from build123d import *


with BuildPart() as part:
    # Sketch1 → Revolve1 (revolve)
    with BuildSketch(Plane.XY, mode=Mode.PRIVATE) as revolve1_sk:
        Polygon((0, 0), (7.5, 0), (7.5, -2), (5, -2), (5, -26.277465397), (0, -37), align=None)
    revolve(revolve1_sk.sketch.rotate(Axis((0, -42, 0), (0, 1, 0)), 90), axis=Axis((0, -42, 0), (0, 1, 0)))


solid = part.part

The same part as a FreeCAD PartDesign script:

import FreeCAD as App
import Part
import Sketcher

V = App.Vector
Q = App.Units.Quantity


def add_polygon(sketch, points):
    """Adds a closed chain of lines whose ends are joined by coincident constraints."""
    first, n = sketch.GeometryCount, len(points)
    for a, b in zip(points, points[1:] + points[:1]):
        sketch.addGeometry(Part.LineSegment(App.Vector(*a, 0), App.Vector(*b, 0)), False)
    for i in range(n):
        sketch.addConstraint(Sketcher.Constraint("Coincident", first + i, 2, first + (i + 1) % n, 1))

doc = App.newDocument("Part")
params = doc.addObject("Spreadsheet::Sheet", "Params")
for row, (alias, value) in enumerate([
    ("sketch1_height", "37 mm"),
    ("sketch1_height2", "2 mm"),
    ("sketch1_width", "7.5 mm"),
    ("sketch1_width2", "2.5 mm"),
    ("revolution_angle", "360 deg"),
], start=1):
    params.set(f"A{row}", alias)
    params.set(f"B{row}", "=" + value)
    params.setAlias(f"B{row}", alias)

body = doc.addObject("PartDesign::Body", "Body")

# Sketch on XY plane
sketch1 = doc.addObject("Sketcher::SketchObject", "Sketch")
body.addObject(sketch1)
sketch1.AttachmentSupport = (doc.XY_Plane, [""])
sketch1.MapMode = "FlatFace"
add_polygon(sketch1, [(7.5, 0), (0, 0), (0, -37), (5, -26.277465), (5, -2), (7.5, -2)])  # lines 0-5
sketch1.addConstraint([
    Sketcher.Constraint("Horizontal", 0),
    Sketcher.Constraint("Vertical", 1),
    Sketcher.Constraint("Vertical", 3),
    Sketcher.Constraint("Horizontal", 4),
    Sketcher.Constraint("Vertical", 5),
    Sketcher.Constraint("Coincident", 0, 2, -1, 1),
    Sketcher.Constraint("DistanceY", 1, 2, 1, 1, 37.0),
    Sketcher.Constraint("DistanceY", 5, 1, 5, 2, 2.0),
    Sketcher.Constraint("Angle", 2, Q("65 deg")),
    Sketcher.Constraint("DistanceX", 0, 2, 0, 1, 7.5),
    Sketcher.Constraint("DistanceX", 4, 1, 4, 2, 2.5),
])
sketch1.setExpression("Constraints[12]", "Params.sketch1_height")
sketch1.setExpression("Constraints[13]", "Params.sketch1_height2")
sketch1.setExpression("Constraints[15]", "Params.sketch1_width")
sketch1.setExpression("Constraints[16]", "Params.sketch1_width2")
revolution = doc.addObject("PartDesign::Revolution", "Revolution")
body.addObject(revolution)
revolution.Profile = sketch1
revolution.ReferenceAxis = (sketch1, ["V_Axis"])
revolution.setExpression("Angle", "Params.revolution_angle")

doc.recompute()
